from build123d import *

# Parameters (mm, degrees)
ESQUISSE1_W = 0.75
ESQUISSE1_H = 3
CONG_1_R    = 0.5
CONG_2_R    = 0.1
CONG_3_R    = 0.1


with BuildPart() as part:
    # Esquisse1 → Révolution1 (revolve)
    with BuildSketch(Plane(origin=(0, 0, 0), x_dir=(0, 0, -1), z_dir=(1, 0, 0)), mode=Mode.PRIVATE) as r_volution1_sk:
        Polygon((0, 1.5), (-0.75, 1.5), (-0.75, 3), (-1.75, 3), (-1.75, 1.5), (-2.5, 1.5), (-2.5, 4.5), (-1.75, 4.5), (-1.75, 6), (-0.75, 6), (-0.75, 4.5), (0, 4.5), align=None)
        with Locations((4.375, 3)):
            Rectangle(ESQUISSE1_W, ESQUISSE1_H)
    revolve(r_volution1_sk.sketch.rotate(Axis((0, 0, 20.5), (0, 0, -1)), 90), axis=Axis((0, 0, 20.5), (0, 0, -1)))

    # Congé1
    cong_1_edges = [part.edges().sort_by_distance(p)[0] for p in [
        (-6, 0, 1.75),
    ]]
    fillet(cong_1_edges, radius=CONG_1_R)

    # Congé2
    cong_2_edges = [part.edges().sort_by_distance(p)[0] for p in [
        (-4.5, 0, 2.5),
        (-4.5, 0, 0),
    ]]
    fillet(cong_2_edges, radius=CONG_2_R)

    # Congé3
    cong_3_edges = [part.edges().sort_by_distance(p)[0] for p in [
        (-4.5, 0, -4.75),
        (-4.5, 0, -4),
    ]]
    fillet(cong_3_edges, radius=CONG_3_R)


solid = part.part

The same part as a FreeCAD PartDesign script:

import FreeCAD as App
import Part
import Sketcher

V = App.Vector
Q = App.Units.Quantity


def edges_at(feature, points):
    """Names of the edges that pass closest to the given points."""
    edges = feature.Shape.Edges
    near = lambda p: min(range(len(edges)), key=lambda i: edges[i].distToShape(Part.Vertex(*p))[0])
    return sorted({f"Edge{near(p) + 1}" for p in points})

doc = App.newDocument("Part")
body = doc.addObject("PartDesign::Body", "Body")
body.AllowCompound = True

# Sketch on YZ plane
sketch1 = body.newObject("Sketcher::SketchObject", "Sketch")
sketch1.AttachmentSupport = (doc.getObject("YZ_Plane"), [""])
sketch1.MapMode = "FlatFace"
sketch1.addGeometry(Part.LineSegment(V(1.5, 0.75, 0), V(1.5, 0, 0)), False)
sketch1.addGeometry(Part.LineSegment(V(1.5, 0, 0), V(4.5, 0, 0)), False)
sketch1.addGeometry(Part.LineSegment(V(4.5, 0, 0), V(4.5, 0.75, 0)), False)
sketch1.addGeometry(Part.LineSegment(V(4.5, 0.75, 0), V(6, 0.75, 0)), False)
sketch1.addGeometry(Part.LineSegment(V(6, 0.75, 0), V(6, 1.75, 0)), False)
sketch1.addGeometry(Part.LineSegment(V(6, 1.75, 0), V(4.5, 1.75, 0)), False)
sketch1.addGeometry(Part.LineSegment(V(4.5, 1.75, 0), V(4.5, 2.5, 0)), False)
sketch1.addGeometry(Part.LineSegment(V(4.5, 2.5, 0), V(1.5, 2.5, 0)), False)
sketch1.addGeometry(Part.LineSegment(V(1.5, 2.5, 0), V(1.5, 1.75, 0)), False)
sketch1.addGeometry(Part.LineSegment(V(1.5, 1.75, 0), V(3, 1.75, 0)), False)
sketch1.addGeometry(Part.LineSegment(V(3, 1.75, 0), V(3, 0.75, 0)), False)
sketch1.addGeometry(Part.LineSegment(V(3, 0.75, 0), V(1.5, 0.75, 0)), False)
sketch1.addGeometry(Part.LineSegment(V(4.5, -4, 0), V(1.5, -4, 0)), False)
sketch1.addGeometry(Part.LineSegment(V(1.5, -4, 0), V(1.5, -4.75, 0)), False)
sketch1.addGeometry(Part.LineSegment(V(1.5, -4.75, 0), V(4.5, -4.75, 0)), False)
sketch1.addGeometry(Part.LineSegment(V(4.5, -4.75, 0), V(4.5, -4, 0)), False)
sketch1.addConstraint(Sketcher.Constraint("Coincident", 0, 2, 1, 1))
sketch1.addConstraint(Sketcher.Constraint("Coincident", 1, 2, 2, 1))
sketch1.addConstraint(Sketcher.Constraint("Coincident", 2, 2, 3, 1))
sketch1.addConstraint(Sketcher.Constraint("Coincident", 3, 2, 4, 1))
sketch1.addConstraint(Sketcher.Constraint("Coincident", 4, 2, 5, 1))
sketch1.addConstraint(Sketcher.Constraint("Coincident", 5, 2, 6, 1))
sketch1.addConstraint(Sketcher.Constraint("Coincident", 6, 2, 7, 1))
sketch1.addConstraint(Sketcher.Constraint("Coincident", 7, 2, 8, 1))
sketch1.addConstraint(Sketcher.Constraint("Coincident", 8, 2, 9, 1))
sketch1.addConstraint(Sketcher.Constraint("Coincident", 9, 2, 10, 1))
sketch1.addConstraint(Sketcher.Constraint("Coincident", 10, 2, 11, 1))
sketch1.addConstraint(Sketcher.Constraint("Coincident", 11, 2, 0, 1))
sketch1.addConstraint(Sketcher.Constraint("Coincident", 12, 2, 13, 1))
sketch1.addConstraint(Sketcher.Constraint("Coincident", 13, 2, 14, 1))
sketch1.addConstraint(Sketcher.Constraint("Coincident", 14, 2, 15, 1))
sketch1.addConstraint(Sketcher.Constraint("Coincident", 15, 2, 12, 1))
sketch1.addConstraint(Sketcher.Constraint("Vertical", 0))
sketch1.addConstraint(Sketcher.Constraint("Horizontal", 1))
sketch1.addConstraint(Sketcher.Constraint("Vertical", 2))
sketch1.addConstraint(Sketcher.Constraint("Horizontal", 3))
sketch1.addConstraint(Sketcher.Constraint("Vertical", 4))
sketch1.addConstraint(Sketcher.Constraint("Horizontal", 5))
sketch1.addConstraint(Sketcher.Constraint("Vertical", 6))
sketch1.addConstraint(Sketcher.Constraint("Horizontal", 7))
sketch1.addConstraint(Sketcher.Constraint("Vertical", 8))
sketch1.addConstraint(Sketcher.Constraint("Horizontal", 9))
sketch1.addConstraint(Sketcher.Constraint("Vertical", 10))
sketch1.addConstraint(Sketcher.Constraint("Horizontal", 11))
sketch1.addConstraint(Sketcher.Constraint("Horizontal", 12))
sketch1.addConstraint(Sketcher.Constraint("Vertical", 13))
sketch1.addConstraint(Sketcher.Constraint("Horizontal", 14))
sketch1.addConstraint(Sketcher.Constraint("Vertical", 15))
sketch1.addConstraint(Sketcher.Constraint("PointOnObject", 0, 2, -1))
sketch1.addConstraint(Sketcher.Constraint("Horizontal", 5, 2, 8, 2))
sketch1.addConstraint(Sketcher.Constraint("Horizontal", 3, 2, 10, 2))
sketch1.addConstraint(Sketcher.Constraint("Vertical", 2, 2, 5, 2))
sketch1.addConstraint(Sketcher.Constraint("Vertical", 0, 2, 7, 2))
sketch1.addConstraint(Sketcher.Constraint("Vertical", 11, 2, 12, 2))
sketch1.addConstraint(Sketcher.Constraint("Vertical", 6, 2, 14, 2))
sketch1.addConstraint(Sketcher.Constraint("Equal", 5, 9))
sketch1.addConstraint(Sketcher.Constraint("Equal", 2, 6))
sketch1.addConstraint(Sketcher.Constraint("Equal", 8, 13))
sketch1.addConstraint(Sketcher.Constraint("DistanceX", 1, 1, 1, 2, Q("3 mm")))
sketch1.addConstraint(Sketcher.Constraint("DistanceY", 4, 1, 4, 2, Q("1 mm")))
sketch1.addConstraint(Sketcher.Constraint("DistanceX", 3, 1, 3, 2, Q("1.5 mm")))
sketch1.addConstraint(Sketcher.Constraint("DistanceX", -1, 1, 3, 2, Q("6 mm")))
sketch1.addConstraint(Sketcher.Constraint("DistanceY", 12, 2, -1, 1, Q("4 mm")))
sketch1.addConstraint(Sketcher.Constraint("DistanceY", 0, 2, 0, 1, Q("0.75 mm")))
revolution = body.newObject("PartDesign::Revolution", "Revolution")
revolution.Profile = sketch1
revolution.ReferenceAxis = (sketch1, ["V_Axis"])
revolution.Angle = 360
doc.recompute()

fillet = body.newObject("PartDesign::Fillet", "Fillet")
fillet.Base = (revolution, edges_at(revolution, [(-6, 0, 1.75)]))
fillet.Radius = 0.5
doc.recompute()

fillet2 = body.newObject("PartDesign::Fillet", "Fillet001")
fillet2.Base = (fillet, edges_at(fillet, [(-4.5, 0, 2.5), (-4.5, 0, 0)]))
fillet2.Radius = 0.1
doc.recompute()

fillet3 = body.newObject("PartDesign::Fillet", "Fillet002")
fillet3.Base = (fillet2, edges_at(fillet2, [(-4.5, 0, -4.75), (-4.5, 0, -4)]))
fillet3.Radius = 0.1

doc.recompute()
